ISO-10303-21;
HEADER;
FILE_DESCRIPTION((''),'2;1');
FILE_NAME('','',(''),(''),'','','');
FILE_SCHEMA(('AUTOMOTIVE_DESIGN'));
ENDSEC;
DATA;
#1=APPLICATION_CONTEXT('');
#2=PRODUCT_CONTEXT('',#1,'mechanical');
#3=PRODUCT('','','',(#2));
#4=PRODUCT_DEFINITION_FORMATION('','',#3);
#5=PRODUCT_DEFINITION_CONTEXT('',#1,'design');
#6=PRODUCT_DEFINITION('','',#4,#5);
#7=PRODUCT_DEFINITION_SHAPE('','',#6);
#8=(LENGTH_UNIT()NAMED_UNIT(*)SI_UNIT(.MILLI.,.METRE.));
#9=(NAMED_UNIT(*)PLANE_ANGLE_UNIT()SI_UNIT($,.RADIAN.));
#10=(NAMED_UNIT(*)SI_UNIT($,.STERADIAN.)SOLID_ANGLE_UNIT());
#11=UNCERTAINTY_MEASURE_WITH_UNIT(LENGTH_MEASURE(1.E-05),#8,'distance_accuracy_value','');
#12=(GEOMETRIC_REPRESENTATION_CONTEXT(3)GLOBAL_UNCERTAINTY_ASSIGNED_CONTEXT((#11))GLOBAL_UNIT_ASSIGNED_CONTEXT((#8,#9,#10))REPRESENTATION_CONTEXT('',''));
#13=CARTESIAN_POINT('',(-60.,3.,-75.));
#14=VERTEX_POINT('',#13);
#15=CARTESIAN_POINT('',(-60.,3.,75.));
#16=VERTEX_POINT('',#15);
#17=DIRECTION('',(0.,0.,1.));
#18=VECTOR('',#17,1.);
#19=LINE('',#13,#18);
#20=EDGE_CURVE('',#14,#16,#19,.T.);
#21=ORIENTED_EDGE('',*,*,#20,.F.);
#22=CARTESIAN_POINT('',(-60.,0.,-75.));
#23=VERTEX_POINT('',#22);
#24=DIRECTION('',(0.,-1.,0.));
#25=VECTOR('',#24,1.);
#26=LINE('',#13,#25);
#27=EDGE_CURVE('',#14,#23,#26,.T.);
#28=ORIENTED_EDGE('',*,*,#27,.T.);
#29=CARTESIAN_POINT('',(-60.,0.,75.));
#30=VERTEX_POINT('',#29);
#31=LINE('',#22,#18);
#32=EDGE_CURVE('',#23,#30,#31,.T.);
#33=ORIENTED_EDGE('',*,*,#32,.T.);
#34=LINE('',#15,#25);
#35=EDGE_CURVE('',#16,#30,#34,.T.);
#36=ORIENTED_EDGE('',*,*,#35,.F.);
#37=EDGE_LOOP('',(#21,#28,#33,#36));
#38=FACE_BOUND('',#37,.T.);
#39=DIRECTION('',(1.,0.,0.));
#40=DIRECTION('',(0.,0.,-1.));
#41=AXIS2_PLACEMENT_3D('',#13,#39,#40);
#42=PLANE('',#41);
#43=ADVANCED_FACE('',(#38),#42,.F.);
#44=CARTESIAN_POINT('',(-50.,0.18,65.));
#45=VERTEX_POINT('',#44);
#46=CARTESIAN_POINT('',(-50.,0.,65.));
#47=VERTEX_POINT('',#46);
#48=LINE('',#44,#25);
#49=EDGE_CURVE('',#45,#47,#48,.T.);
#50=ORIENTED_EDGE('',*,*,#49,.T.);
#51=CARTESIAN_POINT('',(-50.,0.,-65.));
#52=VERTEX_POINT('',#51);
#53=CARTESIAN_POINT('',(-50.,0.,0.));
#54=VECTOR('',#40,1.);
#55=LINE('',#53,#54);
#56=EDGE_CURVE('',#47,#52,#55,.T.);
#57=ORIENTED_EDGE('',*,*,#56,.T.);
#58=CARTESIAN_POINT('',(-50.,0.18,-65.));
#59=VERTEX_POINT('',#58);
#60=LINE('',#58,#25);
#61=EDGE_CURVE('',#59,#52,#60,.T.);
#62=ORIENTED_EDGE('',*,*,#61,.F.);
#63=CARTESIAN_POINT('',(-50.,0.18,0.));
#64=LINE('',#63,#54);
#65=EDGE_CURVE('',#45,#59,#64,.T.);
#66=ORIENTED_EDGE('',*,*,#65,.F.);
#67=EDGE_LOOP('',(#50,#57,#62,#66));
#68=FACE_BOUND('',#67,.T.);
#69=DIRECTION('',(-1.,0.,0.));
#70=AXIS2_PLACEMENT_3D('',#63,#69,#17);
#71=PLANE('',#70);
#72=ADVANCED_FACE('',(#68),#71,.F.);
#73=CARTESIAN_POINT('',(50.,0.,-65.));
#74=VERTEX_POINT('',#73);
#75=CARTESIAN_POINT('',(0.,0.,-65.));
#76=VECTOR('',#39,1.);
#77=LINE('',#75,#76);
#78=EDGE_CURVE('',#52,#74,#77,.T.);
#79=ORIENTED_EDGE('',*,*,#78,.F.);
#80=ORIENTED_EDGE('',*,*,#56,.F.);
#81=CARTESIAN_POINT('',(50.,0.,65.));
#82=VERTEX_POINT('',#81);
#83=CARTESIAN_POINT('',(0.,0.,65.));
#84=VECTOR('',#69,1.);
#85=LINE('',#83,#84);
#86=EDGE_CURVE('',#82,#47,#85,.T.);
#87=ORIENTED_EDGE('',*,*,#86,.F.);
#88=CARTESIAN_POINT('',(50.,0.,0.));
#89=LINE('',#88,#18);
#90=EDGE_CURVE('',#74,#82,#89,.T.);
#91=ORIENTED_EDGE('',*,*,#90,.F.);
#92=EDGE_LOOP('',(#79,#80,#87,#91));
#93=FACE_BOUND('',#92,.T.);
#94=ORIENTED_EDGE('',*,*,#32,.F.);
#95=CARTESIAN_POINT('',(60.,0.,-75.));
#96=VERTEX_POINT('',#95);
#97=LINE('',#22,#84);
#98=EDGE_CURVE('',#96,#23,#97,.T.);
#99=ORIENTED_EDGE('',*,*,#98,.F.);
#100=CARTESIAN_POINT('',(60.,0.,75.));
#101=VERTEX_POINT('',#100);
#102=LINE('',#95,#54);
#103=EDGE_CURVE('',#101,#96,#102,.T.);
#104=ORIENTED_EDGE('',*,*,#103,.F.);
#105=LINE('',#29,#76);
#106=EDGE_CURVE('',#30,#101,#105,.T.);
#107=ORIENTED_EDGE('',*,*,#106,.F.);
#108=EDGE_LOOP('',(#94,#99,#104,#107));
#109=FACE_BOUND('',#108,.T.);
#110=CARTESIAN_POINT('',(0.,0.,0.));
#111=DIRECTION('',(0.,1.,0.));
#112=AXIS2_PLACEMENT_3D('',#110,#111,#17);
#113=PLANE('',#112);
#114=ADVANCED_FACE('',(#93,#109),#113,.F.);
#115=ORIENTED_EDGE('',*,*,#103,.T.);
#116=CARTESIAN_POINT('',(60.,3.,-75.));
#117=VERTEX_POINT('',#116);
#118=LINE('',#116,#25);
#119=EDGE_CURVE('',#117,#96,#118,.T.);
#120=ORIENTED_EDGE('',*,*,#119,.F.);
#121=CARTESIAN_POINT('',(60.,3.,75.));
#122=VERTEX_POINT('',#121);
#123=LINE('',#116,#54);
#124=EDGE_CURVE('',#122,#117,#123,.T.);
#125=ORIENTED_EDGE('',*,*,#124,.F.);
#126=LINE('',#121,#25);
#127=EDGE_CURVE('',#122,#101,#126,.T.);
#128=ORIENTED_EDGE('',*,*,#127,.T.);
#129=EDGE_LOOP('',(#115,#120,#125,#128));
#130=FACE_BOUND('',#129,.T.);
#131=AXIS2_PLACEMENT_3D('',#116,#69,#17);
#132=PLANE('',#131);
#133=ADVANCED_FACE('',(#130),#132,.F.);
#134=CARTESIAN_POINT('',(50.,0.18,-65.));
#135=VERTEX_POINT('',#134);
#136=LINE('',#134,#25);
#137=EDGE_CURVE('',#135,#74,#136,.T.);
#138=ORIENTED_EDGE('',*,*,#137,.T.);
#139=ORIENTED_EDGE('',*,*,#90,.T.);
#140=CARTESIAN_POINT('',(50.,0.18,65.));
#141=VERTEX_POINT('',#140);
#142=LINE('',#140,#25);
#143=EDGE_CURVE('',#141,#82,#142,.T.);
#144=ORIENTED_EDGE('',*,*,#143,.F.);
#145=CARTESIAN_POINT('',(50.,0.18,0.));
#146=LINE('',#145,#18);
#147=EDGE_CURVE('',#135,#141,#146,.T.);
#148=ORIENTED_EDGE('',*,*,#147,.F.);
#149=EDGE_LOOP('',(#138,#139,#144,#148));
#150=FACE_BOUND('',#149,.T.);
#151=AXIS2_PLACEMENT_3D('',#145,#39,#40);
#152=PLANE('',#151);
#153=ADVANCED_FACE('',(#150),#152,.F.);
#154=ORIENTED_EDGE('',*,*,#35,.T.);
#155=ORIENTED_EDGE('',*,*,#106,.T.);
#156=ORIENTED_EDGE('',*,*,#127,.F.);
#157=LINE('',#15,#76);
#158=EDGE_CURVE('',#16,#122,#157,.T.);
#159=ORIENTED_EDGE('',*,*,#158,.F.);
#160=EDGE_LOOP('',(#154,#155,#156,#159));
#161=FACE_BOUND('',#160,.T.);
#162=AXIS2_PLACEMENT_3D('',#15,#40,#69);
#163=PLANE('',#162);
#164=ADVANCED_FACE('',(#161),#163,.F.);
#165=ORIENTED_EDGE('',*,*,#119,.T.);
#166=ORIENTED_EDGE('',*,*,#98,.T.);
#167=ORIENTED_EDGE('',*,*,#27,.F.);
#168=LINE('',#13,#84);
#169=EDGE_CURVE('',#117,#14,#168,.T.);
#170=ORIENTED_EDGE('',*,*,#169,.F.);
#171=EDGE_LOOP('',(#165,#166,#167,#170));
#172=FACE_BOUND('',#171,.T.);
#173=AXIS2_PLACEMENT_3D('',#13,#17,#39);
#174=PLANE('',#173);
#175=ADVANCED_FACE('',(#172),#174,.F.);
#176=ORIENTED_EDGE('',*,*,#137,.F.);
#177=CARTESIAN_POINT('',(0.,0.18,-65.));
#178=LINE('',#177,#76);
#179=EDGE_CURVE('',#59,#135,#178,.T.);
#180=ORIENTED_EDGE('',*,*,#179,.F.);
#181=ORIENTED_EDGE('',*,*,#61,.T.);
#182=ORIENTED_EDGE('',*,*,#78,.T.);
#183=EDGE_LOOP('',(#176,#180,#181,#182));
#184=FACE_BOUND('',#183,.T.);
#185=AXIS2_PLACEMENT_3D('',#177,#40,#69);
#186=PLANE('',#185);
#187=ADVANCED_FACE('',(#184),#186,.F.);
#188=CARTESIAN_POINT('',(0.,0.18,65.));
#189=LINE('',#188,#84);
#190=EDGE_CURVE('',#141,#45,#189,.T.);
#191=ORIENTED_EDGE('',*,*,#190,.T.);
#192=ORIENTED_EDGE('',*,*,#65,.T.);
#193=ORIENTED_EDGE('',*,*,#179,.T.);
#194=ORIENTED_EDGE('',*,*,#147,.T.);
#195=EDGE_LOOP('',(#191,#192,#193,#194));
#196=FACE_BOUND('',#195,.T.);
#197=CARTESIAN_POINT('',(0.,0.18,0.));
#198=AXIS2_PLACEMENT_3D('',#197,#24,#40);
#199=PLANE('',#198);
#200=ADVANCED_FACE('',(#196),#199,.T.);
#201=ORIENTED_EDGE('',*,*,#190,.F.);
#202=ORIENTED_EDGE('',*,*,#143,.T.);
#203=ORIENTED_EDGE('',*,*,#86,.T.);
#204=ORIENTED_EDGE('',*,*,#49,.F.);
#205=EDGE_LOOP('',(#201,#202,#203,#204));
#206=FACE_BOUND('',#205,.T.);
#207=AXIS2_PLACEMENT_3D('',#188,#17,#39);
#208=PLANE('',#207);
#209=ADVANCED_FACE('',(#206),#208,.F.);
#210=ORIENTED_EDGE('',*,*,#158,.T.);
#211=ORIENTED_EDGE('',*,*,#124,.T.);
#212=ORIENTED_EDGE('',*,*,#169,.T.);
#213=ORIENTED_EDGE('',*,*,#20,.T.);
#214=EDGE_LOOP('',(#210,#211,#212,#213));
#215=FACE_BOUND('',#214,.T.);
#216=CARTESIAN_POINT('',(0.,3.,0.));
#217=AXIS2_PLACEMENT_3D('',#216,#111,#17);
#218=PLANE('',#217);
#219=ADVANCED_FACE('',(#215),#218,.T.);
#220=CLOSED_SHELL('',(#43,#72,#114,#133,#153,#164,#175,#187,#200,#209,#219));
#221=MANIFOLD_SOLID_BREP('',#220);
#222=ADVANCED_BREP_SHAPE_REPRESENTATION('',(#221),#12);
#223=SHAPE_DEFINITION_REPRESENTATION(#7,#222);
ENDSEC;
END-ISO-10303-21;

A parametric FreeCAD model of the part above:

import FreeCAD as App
import Part
import Sketcher

V = App.Vector
Q = App.Units.Quantity

doc = App.newDocument("Part")
body = doc.addObject("PartDesign::Body", "Body")

sketch1 = body.newObject("Sketcher::SketchObject", "Sketch")
sketch1.AttachmentSupport = (doc.getObject("XZ_Plane"), [""])
sketch1.MapMode = "FlatFace"
sketch1.addGeometry([
    Part.LineSegment(V(-60, -75, 0), V(-60, 75, 0)),
    Part.LineSegment(V(-60, 75, 0), V(60, 75, 0)),
    Part.LineSegment(V(60, 75, 0), V(60, -75, 0)),
    Part.LineSegment(V(60, -75, 0), V(-60, -75, 0)),
], False)
sketch1.addConstraint([
    Sketcher.Constraint("Coincident", 0, 2, 1, 1),
    Sketcher.Constraint("Coincident", 1, 2, 2, 1),
    Sketcher.Constraint("Coincident", 2, 2, 3, 1),
    Sketcher.Constraint("Coincident", 3, 2, 0, 1),
    Sketcher.Constraint("Vertical", 0),
    Sketcher.Constraint("Horizontal", 1),
    Sketcher.Constraint("Vertical", 2),
    Sketcher.Constraint("Horizontal", 3),
    Sketcher.Constraint("Symmetric", 0, 2, 2, 2, -1, 1),
    Sketcher.Constraint("DistanceX", 1, 1, 1, 2, Q("120 mm")),
    Sketcher.Constraint("DistanceY", 0, 1, 0, 2, Q("150 mm")),
])
pad1 = body.newObject("PartDesign::Pad", "Pad")
pad1.Profile = sketch1
pad1.Length = 3
pad1.Reversed = True

sketch2 = body.newObject("Sketcher::SketchObject", "Sketch001")
sketch2.AttachmentSupport = (doc.getObject("XZ_Plane"), [""])
sketch2.MapMode = "FlatFace"
sketch2.addGeometry([
    Part.LineSegment(V(-50, 65, 0), V(-50, -65, 0)),
    Part.LineSegment(V(-50, -65, 0), V(50, -65, 0)),
    Part.LineSegment(V(50, -65, 0), V(50, 65, 0)),
    Part.LineSegment(V(50, 65, 0), V(-50, 65, 0)),
], False)
sketch2.addConstraint([
    Sketcher.Constraint("Coincident", 0, 2, 1, 1),
    Sketcher.Constraint("Coincident", 1, 2, 2, 1),
    Sketcher.Constraint("Coincident", 2, 2, 3, 1),
    Sketcher.Constraint("Coincident", 3, 2, 0, 1),
    Sketcher.Constraint("Vertical", 0),
    Sketcher.Constraint("Horizontal", 1),
    Sketcher.Constraint("Vertical", 2),
    Sketcher.Constraint("Horizontal", 3),
    Sketcher.Constraint("Symmetric", 0, 2, 2, 2, -1, 1),
    Sketcher.Constraint("DistanceX", 1, 1, 1, 2, Q("100 mm")),
    Sketcher.Constraint("DistanceY", 0, 2, 0, 1, Q("130 mm")),
])
pocket1 = body.newObject("PartDesign::Pocket", "Pocket")
pocket1.Profile = sketch2
pocket1.Length = 0.18

doc.recompute()
